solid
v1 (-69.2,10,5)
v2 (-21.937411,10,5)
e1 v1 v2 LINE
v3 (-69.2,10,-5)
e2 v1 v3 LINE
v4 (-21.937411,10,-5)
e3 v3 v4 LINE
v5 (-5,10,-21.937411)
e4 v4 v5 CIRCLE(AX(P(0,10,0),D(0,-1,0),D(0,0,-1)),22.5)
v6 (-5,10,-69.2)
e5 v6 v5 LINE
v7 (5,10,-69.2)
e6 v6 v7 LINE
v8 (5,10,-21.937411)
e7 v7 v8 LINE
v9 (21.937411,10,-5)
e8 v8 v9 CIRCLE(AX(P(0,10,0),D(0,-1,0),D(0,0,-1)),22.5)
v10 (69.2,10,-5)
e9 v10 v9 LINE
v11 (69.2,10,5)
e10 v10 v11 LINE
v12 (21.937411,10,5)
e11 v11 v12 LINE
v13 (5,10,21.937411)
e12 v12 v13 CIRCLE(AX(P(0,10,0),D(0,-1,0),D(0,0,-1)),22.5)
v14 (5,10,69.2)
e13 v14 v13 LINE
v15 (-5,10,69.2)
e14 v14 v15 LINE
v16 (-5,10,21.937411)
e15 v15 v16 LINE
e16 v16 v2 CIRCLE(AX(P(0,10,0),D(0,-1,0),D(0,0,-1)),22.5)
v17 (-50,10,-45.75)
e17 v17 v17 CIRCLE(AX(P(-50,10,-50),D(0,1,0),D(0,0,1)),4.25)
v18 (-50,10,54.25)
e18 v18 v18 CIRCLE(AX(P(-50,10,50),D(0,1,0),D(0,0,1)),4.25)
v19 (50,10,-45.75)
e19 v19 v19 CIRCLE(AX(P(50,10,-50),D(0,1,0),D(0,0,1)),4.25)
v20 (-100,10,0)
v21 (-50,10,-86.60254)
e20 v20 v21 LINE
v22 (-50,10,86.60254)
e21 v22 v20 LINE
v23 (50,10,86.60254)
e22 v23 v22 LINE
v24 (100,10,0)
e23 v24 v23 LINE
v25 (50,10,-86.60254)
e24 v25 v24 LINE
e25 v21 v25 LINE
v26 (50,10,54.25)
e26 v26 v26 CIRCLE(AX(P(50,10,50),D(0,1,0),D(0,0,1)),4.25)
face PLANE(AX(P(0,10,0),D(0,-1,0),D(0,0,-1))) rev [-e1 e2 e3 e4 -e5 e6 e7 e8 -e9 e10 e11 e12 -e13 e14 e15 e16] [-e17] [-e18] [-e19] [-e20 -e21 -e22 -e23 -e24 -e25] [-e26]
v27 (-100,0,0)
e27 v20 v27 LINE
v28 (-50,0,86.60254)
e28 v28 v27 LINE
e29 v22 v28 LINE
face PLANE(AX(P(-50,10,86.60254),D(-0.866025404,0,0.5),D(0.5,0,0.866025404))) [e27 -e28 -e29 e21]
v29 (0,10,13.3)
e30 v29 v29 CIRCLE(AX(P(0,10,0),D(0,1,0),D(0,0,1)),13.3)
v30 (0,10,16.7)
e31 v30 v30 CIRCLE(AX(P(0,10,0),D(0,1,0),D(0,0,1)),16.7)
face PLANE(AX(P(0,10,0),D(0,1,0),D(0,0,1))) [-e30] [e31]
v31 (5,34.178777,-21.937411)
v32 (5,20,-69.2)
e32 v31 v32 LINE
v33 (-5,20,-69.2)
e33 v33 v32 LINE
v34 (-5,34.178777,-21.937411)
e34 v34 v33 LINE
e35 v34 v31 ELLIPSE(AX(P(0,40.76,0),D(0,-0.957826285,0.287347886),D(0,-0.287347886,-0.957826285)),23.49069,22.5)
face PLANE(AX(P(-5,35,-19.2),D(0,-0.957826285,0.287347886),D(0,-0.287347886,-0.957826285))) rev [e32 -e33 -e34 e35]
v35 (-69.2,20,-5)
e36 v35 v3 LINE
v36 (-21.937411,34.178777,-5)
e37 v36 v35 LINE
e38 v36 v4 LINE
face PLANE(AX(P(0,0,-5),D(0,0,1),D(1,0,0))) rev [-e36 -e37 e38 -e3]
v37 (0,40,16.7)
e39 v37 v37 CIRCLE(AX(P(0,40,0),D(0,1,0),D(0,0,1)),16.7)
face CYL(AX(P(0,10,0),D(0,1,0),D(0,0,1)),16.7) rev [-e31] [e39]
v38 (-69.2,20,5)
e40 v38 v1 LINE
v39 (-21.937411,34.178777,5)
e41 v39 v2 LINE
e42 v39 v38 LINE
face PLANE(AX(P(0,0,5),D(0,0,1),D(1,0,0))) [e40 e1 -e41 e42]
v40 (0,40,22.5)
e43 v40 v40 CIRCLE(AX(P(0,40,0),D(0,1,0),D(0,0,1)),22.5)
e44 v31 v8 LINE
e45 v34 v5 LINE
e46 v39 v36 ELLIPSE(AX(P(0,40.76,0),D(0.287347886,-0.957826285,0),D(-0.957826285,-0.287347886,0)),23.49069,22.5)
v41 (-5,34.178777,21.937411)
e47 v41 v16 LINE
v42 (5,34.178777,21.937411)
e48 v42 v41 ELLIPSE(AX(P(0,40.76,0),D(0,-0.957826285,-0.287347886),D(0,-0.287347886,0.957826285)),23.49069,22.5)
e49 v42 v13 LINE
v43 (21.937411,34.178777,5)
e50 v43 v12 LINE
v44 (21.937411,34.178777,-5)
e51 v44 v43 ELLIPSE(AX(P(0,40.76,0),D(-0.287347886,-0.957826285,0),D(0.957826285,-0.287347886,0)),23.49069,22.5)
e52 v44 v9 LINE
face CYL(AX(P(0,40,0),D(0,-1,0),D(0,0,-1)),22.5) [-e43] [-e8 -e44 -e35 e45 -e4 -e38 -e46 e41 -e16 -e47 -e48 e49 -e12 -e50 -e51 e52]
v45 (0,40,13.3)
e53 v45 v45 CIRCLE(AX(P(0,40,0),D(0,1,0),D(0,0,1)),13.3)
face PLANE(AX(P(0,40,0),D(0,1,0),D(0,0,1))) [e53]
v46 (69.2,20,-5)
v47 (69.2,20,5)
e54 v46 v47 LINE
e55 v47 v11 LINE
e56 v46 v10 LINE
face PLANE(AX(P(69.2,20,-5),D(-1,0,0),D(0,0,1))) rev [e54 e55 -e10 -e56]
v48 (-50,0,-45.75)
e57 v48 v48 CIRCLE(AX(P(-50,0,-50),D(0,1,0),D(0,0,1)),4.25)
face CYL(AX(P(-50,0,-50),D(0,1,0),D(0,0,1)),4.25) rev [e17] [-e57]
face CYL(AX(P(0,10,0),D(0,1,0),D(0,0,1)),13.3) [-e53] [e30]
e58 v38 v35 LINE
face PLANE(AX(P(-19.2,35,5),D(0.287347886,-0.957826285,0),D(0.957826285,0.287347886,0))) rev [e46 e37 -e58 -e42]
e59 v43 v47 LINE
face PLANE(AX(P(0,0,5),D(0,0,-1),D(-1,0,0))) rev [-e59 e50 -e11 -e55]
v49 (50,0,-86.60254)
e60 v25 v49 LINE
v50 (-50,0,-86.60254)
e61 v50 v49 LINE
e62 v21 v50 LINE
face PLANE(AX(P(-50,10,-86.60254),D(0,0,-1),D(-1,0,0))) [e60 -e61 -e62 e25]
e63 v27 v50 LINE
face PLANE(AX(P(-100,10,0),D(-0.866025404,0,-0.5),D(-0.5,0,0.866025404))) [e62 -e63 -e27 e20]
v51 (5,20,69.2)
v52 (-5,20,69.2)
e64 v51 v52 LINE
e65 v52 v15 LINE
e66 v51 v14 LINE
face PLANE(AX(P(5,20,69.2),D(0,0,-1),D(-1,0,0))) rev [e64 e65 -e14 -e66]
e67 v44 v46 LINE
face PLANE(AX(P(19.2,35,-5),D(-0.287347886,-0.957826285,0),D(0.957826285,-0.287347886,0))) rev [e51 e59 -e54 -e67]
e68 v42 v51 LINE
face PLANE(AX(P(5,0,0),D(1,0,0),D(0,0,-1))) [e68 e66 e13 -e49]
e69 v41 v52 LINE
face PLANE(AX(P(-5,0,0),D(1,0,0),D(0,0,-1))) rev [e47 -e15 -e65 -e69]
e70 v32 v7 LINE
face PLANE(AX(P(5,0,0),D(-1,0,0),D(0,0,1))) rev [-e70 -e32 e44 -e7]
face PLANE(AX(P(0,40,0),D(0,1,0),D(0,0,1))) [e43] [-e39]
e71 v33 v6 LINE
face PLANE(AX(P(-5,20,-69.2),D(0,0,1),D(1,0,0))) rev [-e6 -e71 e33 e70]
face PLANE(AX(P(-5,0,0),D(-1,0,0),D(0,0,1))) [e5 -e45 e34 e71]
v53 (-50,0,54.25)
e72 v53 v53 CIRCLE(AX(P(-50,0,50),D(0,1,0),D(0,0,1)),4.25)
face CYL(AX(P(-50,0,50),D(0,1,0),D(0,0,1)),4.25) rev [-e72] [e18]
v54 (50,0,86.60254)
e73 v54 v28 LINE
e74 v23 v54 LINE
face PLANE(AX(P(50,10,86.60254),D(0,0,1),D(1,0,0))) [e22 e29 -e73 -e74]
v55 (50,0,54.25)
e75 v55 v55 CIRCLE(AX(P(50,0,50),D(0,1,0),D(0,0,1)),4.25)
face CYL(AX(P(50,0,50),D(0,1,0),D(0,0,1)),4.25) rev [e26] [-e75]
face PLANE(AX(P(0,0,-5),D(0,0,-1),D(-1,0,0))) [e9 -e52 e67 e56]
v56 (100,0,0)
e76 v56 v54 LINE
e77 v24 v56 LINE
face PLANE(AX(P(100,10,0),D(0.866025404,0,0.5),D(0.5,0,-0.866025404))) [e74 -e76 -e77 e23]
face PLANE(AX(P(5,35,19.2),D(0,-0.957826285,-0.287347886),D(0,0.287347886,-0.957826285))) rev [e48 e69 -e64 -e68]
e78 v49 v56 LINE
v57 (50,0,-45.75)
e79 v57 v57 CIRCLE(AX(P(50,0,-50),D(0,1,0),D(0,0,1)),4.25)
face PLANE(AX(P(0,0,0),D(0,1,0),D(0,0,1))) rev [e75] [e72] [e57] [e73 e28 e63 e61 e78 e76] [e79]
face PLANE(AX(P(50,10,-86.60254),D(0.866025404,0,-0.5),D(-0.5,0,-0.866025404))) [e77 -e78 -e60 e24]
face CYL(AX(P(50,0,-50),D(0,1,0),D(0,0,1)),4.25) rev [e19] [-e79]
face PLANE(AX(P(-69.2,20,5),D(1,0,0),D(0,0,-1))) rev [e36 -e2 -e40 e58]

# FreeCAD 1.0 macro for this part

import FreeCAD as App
import Part
import Sketcher
from FreeCAD import Vector
Q = App.Units.Quantity

doc = App.newDocument("Part")
body = doc.addObject("PartDesign::Body", "Body")

# Sketch on XZ plane
sketch1 = body.newObject("Sketcher::SketchObject", "Sketch")
sketch1.AttachmentSupport = (doc.getObject("XZ_Plane"), [""])
sketch1.MapMode = "FlatFace"
sketch1.addGeometry(Part.Circle(Vector(0, 0, 0), Vector(0, 0, 1), 22.5), False)
sketch1.addConstraint(Sketcher.Constraint("Coincident", 0, 3, -1, 1))
sketch1.addConstraint(Sketcher.Constraint("Diameter", 0, 45.0))
pad1 = body.newObject("PartDesign::Pad", "Pad")
pad1.Profile = sketch1
pad1.Length = 40
pad1.Reversed = True

# Sketch on XZ plane
sketch2 = body.newObject("Sketcher::SketchObject", "Sketch001")
sketch2.AttachmentSupport = (doc.getObject("XZ_Plane"), [""])
sketch2.MapMode = "FlatFace"
sketch2.AttachmentOffset = App.Placement(Vector(0, 0, -40), App.Rotation())
sketch2.addGeometry(Part.Circle(Vector(0, 0, 0), Vector(0, 0, 1), 16.7), False)
sketch2.addGeometry(Part.Circle(Vector(0, 0, 0), Vector(0, 0, 1), 13.3), False)
sketch2.addConstraint(Sketcher.Constraint("Coincident", 0, 3, -1, 1))
sketch2.addConstraint(Sketcher.Constraint("Coincident", 1, 3, -1, 1))
sketch2.addConstraint(Sketcher.Constraint("Diameter", 0, 33.4))
sketch2.addConstraint(Sketcher.Constraint("Diameter", 1, 26.6))
pocket1 = body.newObject("PartDesign::Pocket", "Pocket")
pocket1.Profile = sketch2
pocket1.Length = 30
pocket1.Reversed = True

# Sketch on XZ plane
sketch3 = body.newObject("Sketcher::SketchObject", "Sketch002")
sketch3.AttachmentSupport = (doc.getObject("XZ_Plane"), [""])
sketch3.MapMode = "FlatFace"
sketch3.addGeometry(Part.LineSegment(Vector(50, 86.60254, 0), Vector(-50, 86.60254, 0)), False)
sketch3.addGeometry(Part.LineSegment(Vector(-50, 86.60254, 0), Vector(-100, 0, 0)), False)
sketch3.addGeometry(Part.LineSegment(Vector(-100, 0, 0), Vector(-50, -86.60254, 0)), False)
sketch3.addGeometry(Part.LineSegment(Vector(-50, -86.60254, 0), Vector(50, -86.60254, 0)), False)
sketch3.addGeometry(Part.LineSegment(Vector(50, -86.60254, 0), Vector(100, 0, 0)), False)
sketch3.addGeometry(Part.LineSegment(Vector(100, 0, 0), Vector(50, 86.60254, 0)), False)
sketch3.addConstraint(Sketcher.Constraint("Coincident", 0, 2, 1, 1))
sketch3.addConstraint(Sketcher.Constraint("Coincident", 1, 2, 2, 1))
sketch3.addConstraint(Sketcher.Constraint("Coincident", 2, 2, 3, 1))
sketch3.addConstraint(Sketcher.Constraint("Coincident", 3, 2, 4, 1))
sketch3.addConstraint(Sketcher.Constraint("Coincident", 4, 2, 5, 1))
sketch3.addConstraint(Sketcher.Constraint("Coincident", 5, 2, 0, 1))
sketch3.addConstraint(Sketcher.Constraint("Horizontal", 0))
sketch3.addConstraint(Sketcher.Constraint("Horizontal", 3))
sketch3.addConstraint(Sketcher.Constraint("Symmetric", 0, 2, 3, 2, -1, 1))
sketch3.addConstraint(Sketcher.Constraint("Symmetric", 1, 2, 4, 2, -1, 1))
sketch3.addConstraint(Sketcher.Constraint("PointOnObject", 1, 2, -1))
sketch3.addConstraint(Sketcher.Constraint("Parallel", 2, 5))
sketch3.addConstraint(Sketcher.Constraint("Vertical", 0, 2, 2, 2))
sketch3.addConstraint(Sketcher.Constraint("DistanceX", 0, 2, 0, 1, 100.0))
sketch3.addConstraint(Sketcher.Constraint("Angle", 1, Q("-120 deg")))
sketch3.addConstraint(Sketcher.Constraint("Distance", 1, 100.0))
pad2 = body.newObject("PartDesign::Pad", "Pad001")
pad2.Profile = sketch3
pad2.Length = 10
pad2.Reversed = True

# Sketch on YZ plane
sketch4 = body.newObject("Sketcher::SketchObject", "Sketch003")
sketch4.AttachmentSupport = (doc.getObject("YZ_Plane"), [""])
sketch4.MapMode = "FlatFace"
sketch4.addGeometry(Part.LineSegment(Vector(10, 69.2, 0), Vector(10, 19.2, 0)), False)
sketch4.addGeometry(Part.LineSegment(Vector(10, 19.2, 0), Vector(35, 19.2, 0)), False)
sketch4.addGeometry(Part.LineSegment(Vector(35, 19.2, 0), Vector(20, 69.2, 0)), False)
sketch4.addGeometry(Part.LineSegment(Vector(20, 69.2, 0), Vector(10, 69.2, 0)), False)
sketch4.addConstraint(Sketcher.Constraint("Coincident", 0, 2, 1, 1))
sketch4.addConstraint(Sketcher.Constraint("Coincident", 1, 2, 2, 1))
sketch4.addConstraint(Sketcher.Constraint("Coincident", 2, 2, 3, 1))
sketch4.addConstraint(Sketcher.Constraint("Coincident", 3, 2, 0, 1))
sketch4.addConstraint(Sketcher.Constraint("Vertical", 0))
sketch4.addConstraint(Sketcher.Constraint("Horizontal", 1))
sketch4.addConstraint(Sketcher.Constraint("Horizontal", 3))
sketch4.addConstraint(Sketcher.Constraint("DistanceX", 1, 1, 1, 2, 25.0))
sketch4.addConstraint(Sketcher.Constraint("DistanceX", 3, 2, 3, 1, 10.0))
sketch4.addConstraint(Sketcher.Constraint("DistanceY", 0, 2, 0, 1, 50.0))
sketch4.addConstraint(Sketcher.Constraint("DistanceX", -1, 1, 0, 2, 10.0))
sketch4.addConstraint(Sketcher.Constraint("DistanceY", -1, 1, 0, 2, 19.2))
pad3 = body.newObject("PartDesign::Pad", "Pad002")
pad3.Profile = sketch4
pad3.Length = 10
pad3.Midplane = True
doc.recompute()

polarpattern = body.newObject("PartDesign::PolarPattern", "PolarPattern")
polarpattern.Originals = [pad3]
polarpattern.Axis = (doc.getObject("Y_Axis"), [""])
polarpattern.Angle = 360
polarpattern.Occurrences = 4
body.Tip = polarpattern

# Sketch on XZ plane
sketch5 = body.newObject("Sketcher::SketchObject", "Sketch004")
sketch5.AttachmentSupport = (doc.getObject("XZ_Plane"), [""])
sketch5.MapMode = "FlatFace"
sketch5.AttachmentOffset = App.Placement(Vector(0, 0, -10), App.Rotation())
sketch5.addGeometry(Part.Circle(Vector(-50, -50, 0), Vector(0, 0, 1), 4.25), False)
sketch5.addGeometry(Part.Circle(Vector(50, -50, 0), Vector(0, 0, 1), 4.25), False)
sketch5.addGeometry(Part.Circle(Vector(-50, 50, 0), Vector(0, 0, 1), 4.25), False)
sketch5.addGeometry(Part.Circle(Vector(50, 50, 0), Vector(0, 0, 1), 4.25), False)
sketch5.addConstraint(Sketcher.Constraint("Equal", 0, 1))
sketch5.addConstraint(Sketcher.Constraint("Equal", 1, 2))
sketch5.addConstraint(Sketcher.Constraint("Equal", 2, 3))
sketch5.addConstraint(Sketcher.Constraint("Symmetric", 1, 3, 2, 3, -1, 1))
sketch5.addConstraint(Sketcher.Constraint("Symmetric", 0, 3, 3, 3, -1, 1))
sketch5.addConstraint(Sketcher.Constraint("Symmetric", 0, 3, 1, 3, -2))
sketch5.addConstraint(Sketcher.Constraint("Diameter", 0, 8.5))
sketch5.addConstraint(Sketcher.Constraint("DistanceX", 0, 3, -1, 1, 50.0))
sketch5.addConstraint(Sketcher.Constraint("DistanceY", 0, 3, -1, 1, 50.0))
pocket2 = body.newObject("PartDesign::Pocket", "Pocket001")
pocket2.Profile = sketch5
pocket2.Type = "ThroughAll"
pocket2.Reversed = True

doc.recompute()
